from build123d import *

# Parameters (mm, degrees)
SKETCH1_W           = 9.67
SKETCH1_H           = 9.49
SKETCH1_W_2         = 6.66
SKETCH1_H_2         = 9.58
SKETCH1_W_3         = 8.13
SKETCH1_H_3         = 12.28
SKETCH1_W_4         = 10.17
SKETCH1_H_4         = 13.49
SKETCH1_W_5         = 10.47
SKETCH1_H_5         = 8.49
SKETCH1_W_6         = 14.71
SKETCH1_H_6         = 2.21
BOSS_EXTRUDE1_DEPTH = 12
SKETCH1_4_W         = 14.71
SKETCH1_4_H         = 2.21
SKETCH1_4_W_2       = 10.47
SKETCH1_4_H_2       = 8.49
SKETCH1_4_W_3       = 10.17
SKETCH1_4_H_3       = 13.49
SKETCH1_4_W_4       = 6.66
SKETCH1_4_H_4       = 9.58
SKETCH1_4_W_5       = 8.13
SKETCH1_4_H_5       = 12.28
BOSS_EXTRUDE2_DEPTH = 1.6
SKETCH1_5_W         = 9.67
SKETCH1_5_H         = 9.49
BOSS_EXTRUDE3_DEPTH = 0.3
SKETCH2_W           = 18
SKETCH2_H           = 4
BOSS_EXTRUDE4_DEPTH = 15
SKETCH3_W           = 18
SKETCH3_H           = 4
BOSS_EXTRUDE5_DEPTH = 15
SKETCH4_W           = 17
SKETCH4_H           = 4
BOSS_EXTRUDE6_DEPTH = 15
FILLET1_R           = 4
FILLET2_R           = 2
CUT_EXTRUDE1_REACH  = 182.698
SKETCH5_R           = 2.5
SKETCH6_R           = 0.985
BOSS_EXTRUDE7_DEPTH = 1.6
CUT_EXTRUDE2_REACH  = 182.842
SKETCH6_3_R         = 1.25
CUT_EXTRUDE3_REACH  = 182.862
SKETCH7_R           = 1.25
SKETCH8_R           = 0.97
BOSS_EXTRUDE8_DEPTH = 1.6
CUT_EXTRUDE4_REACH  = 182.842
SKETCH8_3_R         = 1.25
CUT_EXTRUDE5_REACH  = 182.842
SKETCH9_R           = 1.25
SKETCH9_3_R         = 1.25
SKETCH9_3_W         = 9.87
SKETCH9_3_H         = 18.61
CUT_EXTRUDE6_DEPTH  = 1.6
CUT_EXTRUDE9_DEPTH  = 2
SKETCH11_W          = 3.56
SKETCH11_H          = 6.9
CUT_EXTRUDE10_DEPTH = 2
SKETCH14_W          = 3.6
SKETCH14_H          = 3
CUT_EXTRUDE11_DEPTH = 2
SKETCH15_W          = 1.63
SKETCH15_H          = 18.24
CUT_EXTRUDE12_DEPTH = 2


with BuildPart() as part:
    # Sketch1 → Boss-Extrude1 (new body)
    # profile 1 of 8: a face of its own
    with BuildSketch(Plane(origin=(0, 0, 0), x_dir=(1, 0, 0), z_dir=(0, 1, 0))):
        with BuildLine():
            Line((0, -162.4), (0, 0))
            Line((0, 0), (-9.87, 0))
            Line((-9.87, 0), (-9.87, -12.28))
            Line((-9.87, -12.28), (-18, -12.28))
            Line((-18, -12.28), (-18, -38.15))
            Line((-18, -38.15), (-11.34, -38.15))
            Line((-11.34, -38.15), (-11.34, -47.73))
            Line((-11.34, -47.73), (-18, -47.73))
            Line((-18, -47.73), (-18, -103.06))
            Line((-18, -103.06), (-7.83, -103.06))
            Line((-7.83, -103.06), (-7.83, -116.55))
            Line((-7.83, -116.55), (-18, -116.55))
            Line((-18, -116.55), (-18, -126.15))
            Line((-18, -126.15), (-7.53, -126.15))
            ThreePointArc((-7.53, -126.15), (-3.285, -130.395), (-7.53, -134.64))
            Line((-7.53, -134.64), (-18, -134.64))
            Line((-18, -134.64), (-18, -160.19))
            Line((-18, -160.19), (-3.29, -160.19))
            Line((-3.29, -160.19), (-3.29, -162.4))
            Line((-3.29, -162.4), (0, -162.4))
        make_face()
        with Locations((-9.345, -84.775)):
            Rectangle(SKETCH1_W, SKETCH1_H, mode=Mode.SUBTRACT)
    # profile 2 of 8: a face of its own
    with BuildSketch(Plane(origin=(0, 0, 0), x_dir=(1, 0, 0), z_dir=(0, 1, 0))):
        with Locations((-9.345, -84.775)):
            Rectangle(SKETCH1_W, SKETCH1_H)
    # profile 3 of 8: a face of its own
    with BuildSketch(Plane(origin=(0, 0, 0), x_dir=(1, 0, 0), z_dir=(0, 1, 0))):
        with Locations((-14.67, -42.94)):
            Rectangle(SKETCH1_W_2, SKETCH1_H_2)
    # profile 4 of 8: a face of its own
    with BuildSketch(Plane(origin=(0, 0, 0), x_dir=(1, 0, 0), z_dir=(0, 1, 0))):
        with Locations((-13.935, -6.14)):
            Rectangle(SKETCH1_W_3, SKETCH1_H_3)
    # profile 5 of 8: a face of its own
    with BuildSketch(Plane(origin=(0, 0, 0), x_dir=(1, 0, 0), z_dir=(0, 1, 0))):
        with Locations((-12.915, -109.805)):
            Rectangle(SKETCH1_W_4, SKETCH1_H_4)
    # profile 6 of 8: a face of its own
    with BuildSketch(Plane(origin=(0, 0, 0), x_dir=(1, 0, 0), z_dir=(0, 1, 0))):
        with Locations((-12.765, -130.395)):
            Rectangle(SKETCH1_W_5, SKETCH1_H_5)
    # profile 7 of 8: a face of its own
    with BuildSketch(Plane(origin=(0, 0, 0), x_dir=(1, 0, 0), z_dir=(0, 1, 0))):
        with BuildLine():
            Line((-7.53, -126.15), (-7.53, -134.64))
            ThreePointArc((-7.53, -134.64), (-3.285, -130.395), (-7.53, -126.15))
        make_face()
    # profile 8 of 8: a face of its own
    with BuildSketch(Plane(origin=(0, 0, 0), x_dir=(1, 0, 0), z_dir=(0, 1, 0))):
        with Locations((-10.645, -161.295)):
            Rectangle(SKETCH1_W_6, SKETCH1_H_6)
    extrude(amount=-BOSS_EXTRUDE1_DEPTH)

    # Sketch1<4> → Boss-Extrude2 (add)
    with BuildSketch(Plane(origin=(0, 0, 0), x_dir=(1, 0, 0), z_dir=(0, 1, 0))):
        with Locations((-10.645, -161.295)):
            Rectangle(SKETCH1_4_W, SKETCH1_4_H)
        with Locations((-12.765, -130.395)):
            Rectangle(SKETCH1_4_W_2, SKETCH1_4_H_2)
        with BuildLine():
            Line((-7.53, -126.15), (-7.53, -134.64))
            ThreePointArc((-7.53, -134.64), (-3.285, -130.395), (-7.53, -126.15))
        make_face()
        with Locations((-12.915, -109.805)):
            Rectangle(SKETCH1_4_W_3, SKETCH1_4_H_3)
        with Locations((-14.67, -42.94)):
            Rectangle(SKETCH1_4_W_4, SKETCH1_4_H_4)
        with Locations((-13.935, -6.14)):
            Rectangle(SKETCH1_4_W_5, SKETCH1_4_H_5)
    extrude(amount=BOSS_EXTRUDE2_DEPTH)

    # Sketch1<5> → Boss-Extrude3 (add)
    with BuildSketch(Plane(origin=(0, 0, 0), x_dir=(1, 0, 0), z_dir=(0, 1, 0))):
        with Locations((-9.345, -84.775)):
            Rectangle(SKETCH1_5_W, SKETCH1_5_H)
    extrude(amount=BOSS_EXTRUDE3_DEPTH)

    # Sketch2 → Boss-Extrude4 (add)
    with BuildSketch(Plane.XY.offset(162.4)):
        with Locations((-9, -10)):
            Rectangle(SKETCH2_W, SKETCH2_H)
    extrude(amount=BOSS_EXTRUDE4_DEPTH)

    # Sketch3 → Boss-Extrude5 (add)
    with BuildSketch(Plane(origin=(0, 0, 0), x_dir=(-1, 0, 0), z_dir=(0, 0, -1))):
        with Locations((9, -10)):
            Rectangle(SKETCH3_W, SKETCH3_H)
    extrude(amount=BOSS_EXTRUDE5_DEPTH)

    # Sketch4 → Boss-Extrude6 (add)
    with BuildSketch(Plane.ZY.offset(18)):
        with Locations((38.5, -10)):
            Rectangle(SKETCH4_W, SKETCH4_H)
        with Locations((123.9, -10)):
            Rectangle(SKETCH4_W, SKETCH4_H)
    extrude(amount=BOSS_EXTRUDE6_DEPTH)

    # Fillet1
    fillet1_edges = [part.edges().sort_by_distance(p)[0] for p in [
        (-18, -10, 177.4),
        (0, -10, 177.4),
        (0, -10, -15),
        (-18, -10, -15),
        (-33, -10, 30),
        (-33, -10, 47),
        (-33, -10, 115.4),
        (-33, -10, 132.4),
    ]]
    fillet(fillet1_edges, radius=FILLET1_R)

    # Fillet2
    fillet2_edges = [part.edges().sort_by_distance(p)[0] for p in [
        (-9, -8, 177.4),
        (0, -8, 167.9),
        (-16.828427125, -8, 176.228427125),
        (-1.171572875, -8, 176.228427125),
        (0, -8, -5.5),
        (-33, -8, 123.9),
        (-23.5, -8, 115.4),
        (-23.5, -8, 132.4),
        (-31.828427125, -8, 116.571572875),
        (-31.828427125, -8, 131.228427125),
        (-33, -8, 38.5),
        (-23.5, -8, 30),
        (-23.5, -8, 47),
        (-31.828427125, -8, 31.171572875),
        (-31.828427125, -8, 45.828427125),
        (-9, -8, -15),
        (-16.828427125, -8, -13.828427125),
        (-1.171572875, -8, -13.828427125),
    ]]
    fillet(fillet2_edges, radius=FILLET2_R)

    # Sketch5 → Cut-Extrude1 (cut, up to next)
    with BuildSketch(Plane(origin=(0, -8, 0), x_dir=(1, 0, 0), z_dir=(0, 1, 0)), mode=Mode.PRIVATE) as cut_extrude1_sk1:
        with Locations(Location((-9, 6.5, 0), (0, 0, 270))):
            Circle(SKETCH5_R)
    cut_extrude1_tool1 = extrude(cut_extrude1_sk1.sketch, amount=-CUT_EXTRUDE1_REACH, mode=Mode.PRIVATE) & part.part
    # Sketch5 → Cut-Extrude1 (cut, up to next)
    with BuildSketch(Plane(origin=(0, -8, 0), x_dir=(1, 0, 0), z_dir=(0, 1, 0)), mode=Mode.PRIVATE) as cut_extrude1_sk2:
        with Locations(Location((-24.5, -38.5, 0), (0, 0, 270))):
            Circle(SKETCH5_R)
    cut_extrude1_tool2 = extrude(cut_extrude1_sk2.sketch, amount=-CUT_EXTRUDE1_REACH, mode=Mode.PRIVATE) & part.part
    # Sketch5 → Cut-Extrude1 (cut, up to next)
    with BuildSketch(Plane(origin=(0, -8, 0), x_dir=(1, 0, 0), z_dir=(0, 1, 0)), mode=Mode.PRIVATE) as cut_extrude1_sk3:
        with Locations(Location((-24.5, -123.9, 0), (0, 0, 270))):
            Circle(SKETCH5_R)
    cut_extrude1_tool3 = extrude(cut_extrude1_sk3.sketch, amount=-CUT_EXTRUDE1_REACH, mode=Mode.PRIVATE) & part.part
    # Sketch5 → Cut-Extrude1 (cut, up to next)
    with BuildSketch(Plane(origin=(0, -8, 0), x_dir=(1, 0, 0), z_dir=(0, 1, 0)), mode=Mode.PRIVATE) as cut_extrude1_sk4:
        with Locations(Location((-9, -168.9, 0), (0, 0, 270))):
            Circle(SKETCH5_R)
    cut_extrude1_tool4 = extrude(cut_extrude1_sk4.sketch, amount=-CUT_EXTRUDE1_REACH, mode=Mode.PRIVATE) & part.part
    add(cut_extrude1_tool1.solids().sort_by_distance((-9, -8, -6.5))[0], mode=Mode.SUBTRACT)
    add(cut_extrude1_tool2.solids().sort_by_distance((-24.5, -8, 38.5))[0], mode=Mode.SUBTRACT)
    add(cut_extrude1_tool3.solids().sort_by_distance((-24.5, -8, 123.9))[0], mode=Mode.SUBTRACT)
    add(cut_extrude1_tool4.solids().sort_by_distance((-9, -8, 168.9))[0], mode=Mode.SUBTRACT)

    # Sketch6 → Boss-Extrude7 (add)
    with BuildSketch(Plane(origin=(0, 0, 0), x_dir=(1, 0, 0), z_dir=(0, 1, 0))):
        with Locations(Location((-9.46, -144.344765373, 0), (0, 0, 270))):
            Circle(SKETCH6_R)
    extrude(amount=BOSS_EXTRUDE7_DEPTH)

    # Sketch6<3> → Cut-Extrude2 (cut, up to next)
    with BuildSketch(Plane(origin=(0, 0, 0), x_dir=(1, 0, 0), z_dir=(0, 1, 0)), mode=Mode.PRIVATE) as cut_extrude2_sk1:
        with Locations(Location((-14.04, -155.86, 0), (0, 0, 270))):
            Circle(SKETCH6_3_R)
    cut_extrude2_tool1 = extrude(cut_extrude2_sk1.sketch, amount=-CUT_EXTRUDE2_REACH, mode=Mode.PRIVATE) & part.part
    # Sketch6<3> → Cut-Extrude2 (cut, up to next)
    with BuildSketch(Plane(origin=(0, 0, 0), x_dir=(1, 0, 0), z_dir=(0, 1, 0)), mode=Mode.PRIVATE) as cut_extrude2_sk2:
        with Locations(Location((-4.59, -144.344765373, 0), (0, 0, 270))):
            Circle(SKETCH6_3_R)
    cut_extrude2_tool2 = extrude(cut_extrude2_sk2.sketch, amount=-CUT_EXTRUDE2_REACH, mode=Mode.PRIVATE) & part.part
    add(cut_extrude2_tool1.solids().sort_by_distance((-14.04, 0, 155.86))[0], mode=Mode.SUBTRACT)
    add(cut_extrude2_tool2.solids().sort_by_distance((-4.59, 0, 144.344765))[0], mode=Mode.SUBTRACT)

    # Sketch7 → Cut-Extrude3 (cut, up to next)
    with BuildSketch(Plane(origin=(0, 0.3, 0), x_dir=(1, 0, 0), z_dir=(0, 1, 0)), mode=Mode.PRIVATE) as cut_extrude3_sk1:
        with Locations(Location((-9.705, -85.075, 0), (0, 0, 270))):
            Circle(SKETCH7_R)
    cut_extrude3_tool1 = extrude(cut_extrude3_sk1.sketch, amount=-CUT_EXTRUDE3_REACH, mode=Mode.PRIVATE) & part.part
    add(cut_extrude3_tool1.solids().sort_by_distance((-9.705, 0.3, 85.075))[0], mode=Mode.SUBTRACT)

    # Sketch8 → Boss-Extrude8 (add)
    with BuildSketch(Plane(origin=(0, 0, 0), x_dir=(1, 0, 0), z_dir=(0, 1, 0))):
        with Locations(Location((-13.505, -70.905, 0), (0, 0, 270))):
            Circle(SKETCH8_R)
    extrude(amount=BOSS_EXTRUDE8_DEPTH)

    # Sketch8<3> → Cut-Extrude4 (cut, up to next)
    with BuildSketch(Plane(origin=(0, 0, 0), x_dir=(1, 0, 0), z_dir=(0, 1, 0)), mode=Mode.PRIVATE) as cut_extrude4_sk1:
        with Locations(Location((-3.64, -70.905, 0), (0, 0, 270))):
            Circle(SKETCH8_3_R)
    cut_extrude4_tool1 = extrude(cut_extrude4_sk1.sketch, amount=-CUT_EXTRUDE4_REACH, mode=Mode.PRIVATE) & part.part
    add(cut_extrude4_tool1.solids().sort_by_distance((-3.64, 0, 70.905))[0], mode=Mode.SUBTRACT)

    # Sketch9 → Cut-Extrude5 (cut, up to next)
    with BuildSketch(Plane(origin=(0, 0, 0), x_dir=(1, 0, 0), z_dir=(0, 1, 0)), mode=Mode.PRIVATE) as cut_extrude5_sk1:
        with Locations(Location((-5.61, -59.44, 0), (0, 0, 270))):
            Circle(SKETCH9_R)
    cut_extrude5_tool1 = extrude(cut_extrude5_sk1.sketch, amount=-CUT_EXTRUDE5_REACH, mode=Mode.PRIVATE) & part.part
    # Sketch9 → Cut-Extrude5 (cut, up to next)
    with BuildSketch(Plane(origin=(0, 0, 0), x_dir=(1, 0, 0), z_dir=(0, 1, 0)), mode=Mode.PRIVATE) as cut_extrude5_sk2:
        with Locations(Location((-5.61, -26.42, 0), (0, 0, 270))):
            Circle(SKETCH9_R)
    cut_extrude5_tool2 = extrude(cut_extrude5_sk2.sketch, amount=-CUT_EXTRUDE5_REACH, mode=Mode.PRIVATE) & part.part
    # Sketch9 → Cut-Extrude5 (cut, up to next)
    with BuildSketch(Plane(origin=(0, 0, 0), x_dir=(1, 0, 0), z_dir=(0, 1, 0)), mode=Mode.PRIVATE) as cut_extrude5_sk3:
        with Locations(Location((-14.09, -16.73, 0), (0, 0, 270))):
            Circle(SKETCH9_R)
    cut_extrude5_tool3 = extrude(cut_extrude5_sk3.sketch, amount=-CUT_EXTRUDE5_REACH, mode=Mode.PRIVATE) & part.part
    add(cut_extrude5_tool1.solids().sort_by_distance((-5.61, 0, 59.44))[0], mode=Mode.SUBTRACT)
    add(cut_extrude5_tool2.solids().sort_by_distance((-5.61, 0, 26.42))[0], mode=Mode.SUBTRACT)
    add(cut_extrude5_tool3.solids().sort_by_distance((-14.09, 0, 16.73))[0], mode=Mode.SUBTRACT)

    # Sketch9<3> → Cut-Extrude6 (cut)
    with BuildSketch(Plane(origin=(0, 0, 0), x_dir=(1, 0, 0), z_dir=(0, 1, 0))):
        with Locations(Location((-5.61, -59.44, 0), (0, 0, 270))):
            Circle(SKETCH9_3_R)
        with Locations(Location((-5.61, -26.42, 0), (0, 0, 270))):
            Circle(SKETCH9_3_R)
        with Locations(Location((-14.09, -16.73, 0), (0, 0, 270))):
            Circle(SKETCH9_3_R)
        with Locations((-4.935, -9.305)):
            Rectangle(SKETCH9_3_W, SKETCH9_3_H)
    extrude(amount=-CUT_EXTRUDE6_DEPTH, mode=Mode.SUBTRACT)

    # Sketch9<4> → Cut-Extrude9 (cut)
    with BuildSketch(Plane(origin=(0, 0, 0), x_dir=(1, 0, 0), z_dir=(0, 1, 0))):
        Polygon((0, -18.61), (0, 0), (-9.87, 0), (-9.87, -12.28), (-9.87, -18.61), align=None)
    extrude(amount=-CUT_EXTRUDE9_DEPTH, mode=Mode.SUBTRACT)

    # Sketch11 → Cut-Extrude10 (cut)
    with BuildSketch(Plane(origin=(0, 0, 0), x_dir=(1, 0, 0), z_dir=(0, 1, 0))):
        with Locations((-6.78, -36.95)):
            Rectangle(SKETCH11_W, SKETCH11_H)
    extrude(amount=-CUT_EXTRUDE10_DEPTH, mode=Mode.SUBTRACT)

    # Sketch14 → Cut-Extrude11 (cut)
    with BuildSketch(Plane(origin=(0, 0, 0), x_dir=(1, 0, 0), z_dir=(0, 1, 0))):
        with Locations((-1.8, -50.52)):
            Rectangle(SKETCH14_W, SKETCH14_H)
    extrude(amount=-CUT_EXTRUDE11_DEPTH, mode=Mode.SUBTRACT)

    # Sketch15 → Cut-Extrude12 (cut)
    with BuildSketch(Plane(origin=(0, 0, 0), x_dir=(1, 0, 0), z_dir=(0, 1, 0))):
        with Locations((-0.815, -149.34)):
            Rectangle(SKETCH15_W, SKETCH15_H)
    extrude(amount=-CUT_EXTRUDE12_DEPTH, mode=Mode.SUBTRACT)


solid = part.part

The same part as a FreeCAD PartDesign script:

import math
import FreeCAD as App
import Part
import Sketcher
from FreeCAD import Vector


def edges_at(feature, points):
    """Names of the edges that pass closest to the given points."""
    edges = feature.Shape.Edges
    near = lambda p: min(range(len(edges)), key=lambda i: edges[i].distToShape(Part.Vertex(*p))[0])
    return sorted({f"Edge{near(p) + 1}" for p in points})

doc = App.newDocument("Part")
body = doc.addObject("PartDesign::Body", "Body")

# Sketch on XZ plane
sketch1 = body.newObject("Sketcher::SketchObject", "Sketch")
sketch1.AttachmentSupport = (doc.getObject("XZ_Plane"), [""])
sketch1.MapMode = "FlatFace"
sketch1.addGeometry([
    Part.LineSegment(Vector(0, 162, 0), Vector(0, 0, 0)),
    Part.LineSegment(Vector(0, 0, 0), Vector(-18, 0, 0)),
    Part.LineSegment(Vector(-18, 0, 0), Vector(-18, 162, 0)),
    Part.LineSegment(Vector(-18, 162, 0), Vector(0, 162, 0)),
], False)
sketch1.addConstraint([
    Sketcher.Constraint("Coincident", 0, 2, 1, 1),
    Sketcher.Constraint("Coincident", 1, 2, 2, 1),
    Sketcher.Constraint("Coincident", 2, 2, 3, 1),
    Sketcher.Constraint("Coincident", 3, 2, 0, 1),
    Sketcher.Constraint("Vertical", 0),
    Sketcher.Constraint("Horizontal", 1),
    Sketcher.Constraint("Vertical", 2),
    Sketcher.Constraint("Horizontal", 3),
    Sketcher.Constraint("Coincident", 0, 2, -1, 1),
    Sketcher.Constraint("DistanceX", 1, 2, 1, 1, 18.0),
    Sketcher.Constraint("DistanceY", 0, 2, 0, 1, 162.4),
])
pad1 = body.newObject("PartDesign::Pad", "Pad")
pad1.Profile = sketch1
pad1.Length = 12

# Sketch on XZ plane
sketch2 = body.newObject("Sketcher::SketchObject", "Sketch001")
sketch2.AttachmentSupport = (doc.getObject("XZ_Plane"), [""])
sketch2.MapMode = "FlatFace"
sketch2.addGeometry([
    Part.LineSegment(Vector(-18, 160.2, 0), Vector(-18, 162.4, 0)),  # 0
    Part.LineSegment(Vector(-18, 162.4, 0), Vector(-3.3, 162.4, 0)),  # 1
    Part.LineSegment(Vector(-3.3, 162.4, 0), Vector(-3.3, 160.2, 0)),  # 2
    Part.LineSegment(Vector(-3.3, 160.2, 0), Vector(-18, 160.2, 0)),  # 3
    Part.LineSegment(Vector(-18, 126.2, 0), Vector(-18, 134.6, 0)),  # 4
    Part.LineSegment(Vector(-18, 134.6, 0), Vector(-7.5, 134.6, 0)),  # 5
    Part.ArcOfCircle(Part.Circle(Vector(-7.5, 130.4, 0), Vector(0, 0, 1), 4.2), math.radians(-90), math.radians(90)),  # 6
    Part.LineSegment(Vector(-7.5, 126.2, 0), Vector(-18, 126.2, 0)),  # 7
    Part.LineSegment(Vector(-18, 103.1, 0), Vector(-18, 116.5, 0)),  # 8
    Part.LineSegment(Vector(-18, 116.5, 0), Vector(-7.8, 116.5, 0)),  # 9
    Part.LineSegment(Vector(-7.8, 116.5, 0), Vector(-7.8, 103.1, 0)),  # 10
    Part.LineSegment(Vector(-7.8, 103.1, 0), Vector(-18, 103.1, 0)),  # 11
    Part.LineSegment(Vector(-18, 38.1, 0), Vector(-18, 47.7, 0)),  # 12
    Part.LineSegment(Vector(-18, 47.7, 0), Vector(-11.3, 47.7, 0)),  # 13
    Part.LineSegment(Vector(-11.3, 47.7, 0), Vector(-11.3, 38.1, 0)),  # 14
    Part.LineSegment(Vector(-11.3, 38.1, 0), Vector(-18, 38.1, 0)),  # 15
    Part.LineSegment(Vector(-18, 0, 0), Vector(-18, 12.3, 0)),  # 16
    Part.LineSegment(Vector(-18, 12.3, 0), Vector(-9.9, 12.3, 0)),  # 17
    Part.LineSegment(Vector(-9.9, 12.3, 0), Vector(-9.9, 0, 0)),  # 18
    Part.LineSegment(Vector(-9.9, 0, 0), Vector(-18, 0, 0)),  # 19
], False)
sketch2.addConstraint([
    Sketcher.Constraint("Coincident", 0, 2, 1, 1),
    Sketcher.Constraint("Coincident", 1, 2, 2, 1),
    Sketcher.Constraint("Coincident", 2, 2, 3, 1),
    Sketcher.Constraint("Coincident", 3, 2, 0, 1),
    Sketcher.Constraint("Coincident", 4, 2, 5, 1),
    Sketcher.Constraint("Tangent", 5, 2, 6, 2),
    Sketcher.Constraint("Tangent", 6, 1, 7, 1),
    Sketcher.Constraint("Coincident", 7, 2, 4, 1),
    Sketcher.Constraint("Coincident", 8, 2, 9, 1),
    Sketcher.Constraint("Coincident", 9, 2, 10, 1),
    Sketcher.Constraint("Coincident", 10, 2, 11, 1),
    Sketcher.Constraint("Coincident", 11, 2, 8, 1),
    Sketcher.Constraint("Coincident", 12, 2, 13, 1),
    Sketcher.Constraint("Coincident", 13, 2, 14, 1),
    Sketcher.Constraint("Coincident", 14, 2, 15, 1),
    Sketcher.Constraint("Coincident", 15, 2, 12, 1),
    Sketcher.Constraint("Coincident", 16, 2, 17, 1),
    Sketcher.Constraint("Coincident", 17, 2, 18, 1),
    Sketcher.Constraint("Coincident", 18, 2, 19, 1),
    Sketcher.Constraint("Coincident", 19, 2, 16, 1),
    Sketcher.Constraint("Vertical", 0),
    Sketcher.Constraint("Horizontal", 1),
    Sketcher.Constraint("Vertical", 2),
    Sketcher.Constraint("Horizontal", 3),
    Sketcher.Constraint("Vertical", 4),
    Sketcher.Constraint("Horizontal", 5),
    Sketcher.Constraint("Horizontal", 7),
    Sketcher.Constraint("Vertical", 8),
    Sketcher.Constraint("Horizontal", 9),
    Sketcher.Constraint("Vertical", 10),
    Sketcher.Constraint("Horizontal", 11),
    Sketcher.Constraint("Vertical", 12),
    Sketcher.Constraint("Horizontal", 13),
    Sketcher.Constraint("Vertical", 14),
    Sketcher.Constraint("Horizontal", 15),
    Sketcher.Constraint("Vertical", 16),
    Sketcher.Constraint("Horizontal", 17),
    Sketcher.Constraint("Vertical", 18),
    Sketcher.Constraint("Horizontal", 19),
    Sketcher.Constraint("PointOnObject", 18, 2, -1),
    Sketcher.Constraint("Vertical", 3, 2, 4, 2),
    Sketcher.Constraint("Vertical", 7, 2, 8, 2),
    Sketcher.Constraint("Vertical", 11, 2, 12, 2),
    Sketcher.Constraint("Vertical", 15, 2, 16, 2),
    Sketcher.Constraint("DistanceX", 0, 2, -1, 1, 18.0),
    Sketcher.Constraint("Radius", 6, 4.245),
    Sketcher.Constraint("DistanceX", 1, 1, 1, 2, 14.71),
    Sketcher.Constraint("DistanceX", 5, 1, 5, 2, 10.47),
    Sketcher.Constraint("DistanceX", 9, 1, 9, 2, 10.17),
    Sketcher.Constraint("DistanceX", 13, 1, 13, 2, 6.66),
    Sketcher.Constraint("DistanceX", 17, 1, 17, 2, 8.13),
    Sketcher.Constraint("DistanceY", 0, 1, 0, 2, 2.21),
    Sketcher.Constraint("DistanceY", 8, 1, 8, 2, 13.49),
    Sketcher.Constraint("DistanceY", 12, 1, 12, 2, 9.58),
    Sketcher.Constraint("DistanceY", 16, 1, 16, 2, 12.28),
    Sketcher.Constraint("DistanceY", -1, 1, 0, 2, 162.4),
    Sketcher.Constraint("DistanceY", 8, 2, 7, 2, 9.6),
    Sketcher.Constraint("DistanceY", 14, 2, 9, 2, 78.4),
    Sketcher.Constraint("DistanceY", -1, 1, 4, 2, 134.64),
])
pad2 = body.newObject("PartDesign::Pad", "Pad001")
pad2.Profile = sketch2
pad2.Length = 1.6
pad2.Reversed = True

# Sketch on XZ plane
sketch3 = body.newObject("Sketcher::SketchObject", "Sketch002")
sketch3.AttachmentSupport = (doc.getObject("XZ_Plane"), [""])
sketch3.MapMode = "FlatFace"
sketch3.addGeometry([
    Part.LineSegment(Vector(-14, 80, 0), Vector(-14, 90, 0)),
    Part.LineSegment(Vector(-14, 90, 0), Vector(-5, 90, 0)),
    Part.LineSegment(Vector(-5, 90, 0), Vector(-5, 80, 0)),
    Part.LineSegment(Vector(-5, 80, 0), Vector(-14, 80, 0)),
], False)
sketch3.addConstraint([
    Sketcher.Constraint("Coincident", 0, 2, 1, 1),
    Sketcher.Constraint("Coincident", 1, 2, 2, 1),
    Sketcher.Constraint("Coincident", 2, 2, 3, 1),
    Sketcher.Constraint("Coincident", 3, 2, 0, 1),
    Sketcher.Constraint("Vertical", 0),
    Sketcher.Constraint("Horizontal", 1),
    Sketcher.Constraint("Vertical", 2),
    Sketcher.Constraint("Horizontal", 3),
    Sketcher.Constraint("DistanceX", 1, 1, 1, 2, 9.67),
    Sketcher.Constraint("DistanceY", 0, 1, 0, 2, 9.49),
    Sketcher.Constraint("DistanceX", 0, 2, -1, 1, 14.18),
    Sketcher.Constraint("DistanceY", -1, 1, 0, 2, 89.52),
])
pad3 = body.newObject("PartDesign::Pad", "Pad002")
pad3.Profile = sketch3
pad3.Length = 0.3
pad3.Reversed = True

# Sketch on XY plane
sketch4 = body.newObject("Sketcher::SketchObject", "Sketch003")
sketch4.AttachmentSupport = (doc.getObject("XY_Plane"), [""])
sketch4.MapMode = "FlatFace"
sketch4.AttachmentOffset = App.Placement(Vector(0, 0, 162.4), App.Rotation())
sketch4.addGeometry([
    Part.LineSegment(Vector(-18, -8, 0), Vector(-18, -12, 0)),
    Part.LineSegment(Vector(-18, -12, 0), Vector(0, -12, 0)),
    Part.LineSegment(Vector(0, -12, 0), Vector(0, -8, 0)),
    Part.LineSegment(Vector(0, -8, 0), Vector(-18, -8, 0)),
], False)
sketch4.addConstraint([
    Sketcher.Constraint("Coincident", 0, 2, 1, 1),
    Sketcher.Constraint("Coincident", 1, 2, 2, 1),
    Sketcher.Constraint("Coincident", 2, 2, 3, 1),
    Sketcher.Constraint("Coincident", 3, 2, 0, 1),
    Sketcher.Constraint("Vertical", 0),
    Sketcher.Constraint("Horizontal", 1),
    Sketcher.Constraint("Vertical", 2),
    Sketcher.Constraint("Horizontal", 3),
    Sketcher.Constraint("PointOnObject", 1, 2, -2),
    Sketcher.Constraint("DistanceX", 1, 1, 1, 2, 18.0),
    Sketcher.Constraint("DistanceY", 0, 2, 0, 1, 4.0),
    Sketcher.Constraint("DistanceY", 0, 2, -1, 1, 12.0),
])
pad4 = body.newObject("PartDesign::Pad", "Pad003")
pad4.Profile = sketch4
pad4.Length = 15

# Sketch on XY plane
sketch5 = body.newObject("Sketcher::SketchObject", "Sketch004")
sketch5.AttachmentSupport = (doc.getObject("XY_Plane"), [""])
sketch5.MapMode = "FlatFace"
sketch5.addGeometry([
    Part.LineSegment(Vector(0, -8, 0), Vector(0, -12, 0)),
    Part.LineSegment(Vector(0, -12, 0), Vector(-18, -12, 0)),
    Part.LineSegment(Vector(-18, -12, 0), Vector(-18, -8, 0)),
    Part.LineSegment(Vector(-18, -8, 0), Vector(0, -8, 0)),
], False)
sketch5.addConstraint([
    Sketcher.Constraint("Coincident", 0, 2, 1, 1),
    Sketcher.Constraint("Coincident", 1, 2, 2, 1),
    Sketcher.Constraint("Coincident", 2, 2, 3, 1),
    Sketcher.Constraint("Coincident", 3, 2, 0, 1),
    Sketcher.Constraint("Vertical", 0),
    Sketcher.Constraint("Horizontal", 1),
    Sketcher.Constraint("Vertical", 2),
    Sketcher.Constraint("Horizontal", 3),
    Sketcher.Constraint("PointOnObject", 0, 2, -2),
    Sketcher.Constraint("DistanceX", 1, 2, 1, 1, 18.0),
    Sketcher.Constraint("DistanceY", 0, 2, 0, 1, 4.0),
    Sketcher.Constraint("DistanceY", 0, 2, -1, 1, 12.0),
])
pad5 = body.newObject("PartDesign::Pad", "Pad004")
pad5.Profile = sketch5
pad5.Length = 15
pad5.Reversed = True

# Sketch on YZ plane
sketch6 = body.newObject("Sketcher::SketchObject", "Sketch005")
sketch6.AttachmentSupport = (doc.getObject("YZ_Plane"), [""])
sketch6.MapMode = "FlatFace"
sketch6.AttachmentOffset = App.Placement(Vector(0, 0, -18), App.Rotation())
sketch6.addGeometry([
    Part.LineSegment(Vector(-8, 30, 0), Vector(-12, 30, 0)),  # 0
    Part.LineSegment(Vector(-12, 30, 0), Vector(-12, 47, 0)),  # 1
    Part.LineSegment(Vector(-12, 47, 0), Vector(-8, 47, 0)),  # 2
    Part.LineSegment(Vector(-8, 47, 0), Vector(-8, 30, 0)),  # 3
    Part.LineSegment(Vector(-8, 115.4, 0), Vector(-12, 115.4, 0)),  # 4
    Part.LineSegment(Vector(-12, 115.4, 0), Vector(-12, 132.4, 0)),  # 5
    Part.LineSegment(Vector(-12, 132.4, 0), Vector(-8, 132.4, 0)),  # 6
    Part.LineSegment(Vector(-8, 132.4, 0), Vector(-8, 115.4, 0)),  # 7
], False)
sketch6.addConstraint([
    Sketcher.Constraint("Coincident", 0, 2, 1, 1),
    Sketcher.Constraint("Coincident", 1, 2, 2, 1),
    Sketcher.Constraint("Coincident", 2, 2, 3, 1),
    Sketcher.Constraint("Coincident", 3, 2, 0, 1),
    Sketcher.Constraint("Coincident", 4, 2, 5, 1),
    Sketcher.Constraint("Coincident", 5, 2, 6, 1),
    Sketcher.Constraint("Coincident", 6, 2, 7, 1),
    Sketcher.Constraint("Coincident", 7, 2, 4, 1),
    Sketcher.Constraint("Horizontal", 0),
    Sketcher.Constraint("Vertical", 1),
    Sketcher.Constraint("Horizontal", 2),
    Sketcher.Constraint("Vertical", 3),
    Sketcher.Constraint("Horizontal", 4),
    Sketcher.Constraint("Vertical", 5),
    Sketcher.Constraint("Horizontal", 6),
    Sketcher.Constraint("Vertical", 7),
    Sketcher.Constraint("Vertical", 1, 2, 4, 2),
    Sketcher.Constraint("Vertical", 3, 2, 6, 2),
    Sketcher.Constraint("Equal", 3, 5),
    Sketcher.Constraint("DistanceX", 0, 2, 0, 1, 4.0),
    Sketcher.Constraint("DistanceY", 1, 1, 1, 2, 17.0),
    Sketcher.Constraint("DistanceX", 0, 2, -1, 1, 12.0),
    Sketcher.Constraint("DistanceY", -1, 1, 0, 2, 30.0),
    Sketcher.Constraint("DistanceY", -1, 1, 4, 2, 115.4),
])
pad6 = body.newObject("PartDesign::Pad", "Pad005")
pad6.Profile = sketch6
pad6.Length = 15
pad6.Reversed = True
doc.recompute()

fillet = body.newObject("PartDesign::Fillet", "Fillet")
fillet.Base = (pad6, edges_at(pad6, [
    (-18, -10, 177.4),
    (0, -10, 177.4),
    (0, -10, -15),
    (-18, -10, -15),
    (-33, -10, 30),
    (-33, -10, 47),
    (-33, -10, 115.4),
    (-33, -10, 132.4),
]))
fillet.Radius = 4
doc.recompute()

fillet2 = body.newObject("PartDesign::Fillet", "Fillet001")
fillet2.Base = (fillet, edges_at(fillet, [
    (-9, -8, 177.4),
    (0, -8, 167.9),
    (-16.828, -8, 176.228),
    (-1.172, -8, 176.228),
    (0, -8, -5.5),
    (-33, -8, 123.9),
    (-23.5, -8, 115.4),
    (-23.5, -8, 132.4),
    (-31.828, -8, 116.572),
    (-31.828, -8, 131.228),
    (-33, -8, 38.5),
    (-23.5, -8, 30),
    (-23.5, -8, 47),
    (-31.828, -8, 31.172),
    (-31.828, -8, 45.828),
    (-9, -8, -15),
    (-16.828, -8, -13.828),
    (-1.172, -8, -13.828),
]))
fillet2.Radius = 2

# Sketch on XZ plane
sketch7 = body.newObject("Sketcher::SketchObject", "Sketch006")
sketch7.AttachmentSupport = (doc.getObject("XZ_Plane"), [""])
sketch7.MapMode = "FlatFace"
sketch7.AttachmentOffset = App.Placement(Vector(0, 0, 8), App.Rotation())
sketch7.addGeometry(Part.Circle(Vector(-9, -6.5, 0), Vector(0, 0, 1), 2.5), False)
sketch7.addConstraint([
    Sketcher.Constraint("Diameter", 0, 5.0),
    Sketcher.Constraint("DistanceX", 0, 3, -1, 1, 9.0),
    Sketcher.Constraint("DistanceY", 0, 3, -1, 1, 6.5),
])
pocket1 = body.newObject("PartDesign::Pocket", "Pocket")
pocket1.Profile = sketch7
pocket1.Type = "UpToFirst"
pocket1.Reversed = True

# Sketch on XZ plane
sketch8 = body.newObject("Sketcher::SketchObject", "Sketch007")
sketch8.AttachmentSupport = (doc.getObject("XZ_Plane"), [""])
sketch8.MapMode = "FlatFace"
sketch8.AttachmentOffset = App.Placement(Vector(0, 0, 8), App.Rotation())
sketch8.addGeometry(Part.Circle(Vector(-24.5, 38.5, 0), Vector(0, 0, 1), 2.5), False)
sketch8.addConstraint([
    Sketcher.Constraint("Diameter", 0, 5.0),
    Sketcher.Constraint("DistanceX", 0, 3, -1, 1, 24.5),
    Sketcher.Constraint("DistanceY", -1, 1, 0, 3, 38.5),
])
pocket2 = body.newObject("PartDesign::Pocket", "Pocket001")
pocket2.Profile = sketch8
pocket2.Type = "UpToFirst"
pocket2.Reversed = True

# Sketch on XZ plane
sketch9 = body.newObject("Sketcher::SketchObject", "Sketch008")
sketch9.AttachmentSupport = (doc.getObject("XZ_Plane"), [""])
sketch9.MapMode = "FlatFace"
sketch9.AttachmentOffset = App.Placement(Vector(0, 0, 8), App.Rotation())
sketch9.addGeometry(Part.Circle(Vector(-24.5, 123.9, 0), Vector(0, 0, 1), 2.5), False)
sketch9.addConstraint([
    Sketcher.Constraint("Diameter", 0, 5.0),
    Sketcher.Constraint("DistanceX", 0, 3, -1, 1, 24.5),
    Sketcher.Constraint("DistanceY", -1, 1, 0, 3, 123.9),
])
pocket3 = body.newObject("PartDesign::Pocket", "Pocket002")
pocket3.Profile = sketch9
pocket3.Type = "UpToFirst"
pocket3.Reversed = True

# Sketch on XZ plane
sketch10 = body.newObject("Sketcher::SketchObject", "Sketch009")
sketch10.AttachmentSupport = (doc.getObject("XZ_Plane"), [""])
sketch10.MapMode = "FlatFace"
sketch10.AttachmentOffset = App.Placement(Vector(0, 0, 8), App.Rotation())
sketch10.addGeometry(Part.Circle(Vector(-9, 168.9, 0), Vector(0, 0, 1), 2.5), False)
sketch10.addConstraint([
    Sketcher.Constraint("Diameter", 0, 5.0),
    Sketcher.Constraint("DistanceX", 0, 3, -1, 1, 9.0),
    Sketcher.Constraint("DistanceY", -1, 1, 0, 3, 168.9),
])
pocket4 = body.newObject("PartDesign::Pocket", "Pocket003")
pocket4.Profile = sketch10
pocket4.Type = "UpToFirst"
pocket4.Reversed = True

# Sketch on XZ plane
sketch11 = body.newObject("Sketcher::SketchObject", "Sketch010")
sketch11.AttachmentSupport = (doc.getObject("XZ_Plane"), [""])
sketch11.MapMode = "FlatFace"
sketch11.addGeometry(Part.Circle(Vector(-9.5, 144.3, 0), Vector(0, 0, 1), 1), False)
sketch11.addConstraint([
    Sketcher.Constraint("Diameter", 0, 1.97),
    Sketcher.Constraint("DistanceX", 0, 3, -1, 1, 9.46),
    Sketcher.Constraint("DistanceY", -1, 1, 0, 3, 144.344765),
])
pad7 = body.newObject("PartDesign::Pad", "Pad006")
pad7.Profile = sketch11
pad7.Length = 1.6
pad7.Reversed = True

# Sketch on XZ plane
sketch12 = body.newObject("Sketcher::SketchObject", "Sketch011")
sketch12.AttachmentSupport = (doc.getObject("XZ_Plane"), [""])
sketch12.MapMode = "FlatFace"
sketch12.addGeometry(Part.Circle(Vector(-14, 155.9, 0), Vector(0, 0, 1), 1.2), False)
sketch12.addConstraint([
    Sketcher.Constraint("Diameter", 0, 2.5),
    Sketcher.Constraint("DistanceX", 0, 3, -1, 1, 14.04),
    Sketcher.Constraint("DistanceY", -1, 1, 0, 3, 155.86),
])
pocket5 = body.newObject("PartDesign::Pocket", "Pocket004")
pocket5.Profile = sketch12
pocket5.Type = "UpToFirst"
pocket5.Reversed = True

# Sketch on XZ plane
sketch13 = body.newObject("Sketcher::SketchObject", "Sketch012")
sketch13.AttachmentSupport = (doc.getObject("XZ_Plane"), [""])
sketch13.MapMode = "FlatFace"
sketch13.addGeometry(Part.Circle(Vector(-4.6, 144.3, 0), Vector(0, 0, 1), 1.2), False)
sketch13.addConstraint([
    Sketcher.Constraint("Diameter", 0, 2.5),
    Sketcher.Constraint("DistanceX", 0, 3, -1, 1, 4.59),
    Sketcher.Constraint("DistanceY", -1, 1, 0, 3, 144.344765),
])
pocket6 = body.newObject("PartDesign::Pocket", "Pocket005")
pocket6.Profile = sketch13
pocket6.Type = "UpToFirst"
pocket6.Reversed = True

# Sketch on XZ plane
sketch14 = body.newObject("Sketcher::SketchObject", "Sketch013")
sketch14.AttachmentSupport = (doc.getObject("XZ_Plane"), [""])
sketch14.MapMode = "FlatFace"
sketch14.AttachmentOffset = App.Placement(Vector(0, 0, -0.3), App.Rotation())
sketch14.addGeometry(Part.Circle(Vector(-9.7, 85.1, 0), Vector(0, 0, 1), 1.2), False)
sketch14.addConstraint([
    Sketcher.Constraint("Diameter", 0, 2.5),
    Sketcher.Constraint("DistanceX", 0, 3, -1, 1, 9.705),
    Sketcher.Constraint("DistanceY", -1, 1, 0, 3, 85.075),
])
pocket7 = body.newObject("PartDesign::Pocket", "Pocket006")
pocket7.Profile = sketch14
pocket7.Type = "UpToFirst"
pocket7.Reversed = True

# Sketch on XZ plane
sketch15 = body.newObject("Sketcher::SketchObject", "Sketch014")
sketch15.AttachmentSupport = (doc.getObject("XZ_Plane"), [""])
sketch15.MapMode = "FlatFace"
sketch15.addGeometry(Part.Circle(Vector(-13.5, 70.9, 0), Vector(0, 0, 1), 1), False)
sketch15.addConstraint([
    Sketcher.Constraint("Diameter", 0, 1.94),
    Sketcher.Constraint("DistanceX", 0, 3, -1, 1, 13.505),
    Sketcher.Constraint("DistanceY", -1, 1, 0, 3, 70.905),
])
pad8 = body.newObject("PartDesign::Pad", "Pad007")
pad8.Profile = sketch15
pad8.Length = 1.6
pad8.Reversed = True

# Sketch on XZ plane
sketch16 = body.newObject("Sketcher::SketchObject", "Sketch015")
sketch16.AttachmentSupport = (doc.getObject("XZ_Plane"), [""])
sketch16.MapMode = "FlatFace"
sketch16.addGeometry(Part.Circle(Vector(-3.6, 70.9, 0), Vector(0, 0, 1), 1.2), False)
sketch16.addConstraint([
    Sketcher.Constraint("Diameter", 0, 2.5),
    Sketcher.Constraint("DistanceX", 0, 3, -1, 1, 3.64),
    Sketcher.Constraint("DistanceY", -1, 1, 0, 3, 70.905),
])
pocket8 = body.newObject("PartDesign::Pocket", "Pocket007")
pocket8.Profile = sketch16
pocket8.Type = "UpToFirst"
pocket8.Reversed = True

# Sketch on XZ plane
sketch17 = body.newObject("Sketcher::SketchObject", "Sketch016")
sketch17.AttachmentSupport = (doc.getObject("XZ_Plane"), [""])
sketch17.MapMode = "FlatFace"
sketch17.addGeometry(Part.Circle(Vector(-5.6, 59.4, 0), Vector(0, 0, 1), 1.2), False)
sketch17.addConstraint([
    Sketcher.Constraint("Diameter", 0, 2.5),
    Sketcher.Constraint("DistanceX", 0, 3, -1, 1, 5.61),
    Sketcher.Constraint("DistanceY", -1, 1, 0, 3, 59.44),
])
pocket9 = body.newObject("PartDesign::Pocket", "Pocket008")
pocket9.Profile = sketch17
pocket9.Type = "UpToFirst"
pocket9.Reversed = True

# Sketch on XZ plane
sketch18 = body.newObject("Sketcher::SketchObject", "Sketch017")
sketch18.AttachmentSupport = (doc.getObject("XZ_Plane"), [""])
sketch18.MapMode = "FlatFace"
sketch18.addGeometry(Part.Circle(Vector(-5.6, 26.4, 0), Vector(0, 0, 1), 1.2), False)
sketch18.addConstraint([
    Sketcher.Constraint("Diameter", 0, 2.5),
    Sketcher.Constraint("DistanceX", 0, 3, -1, 1, 5.61),
    Sketcher.Constraint("DistanceY", -1, 1, 0, 3, 26.42),
])
pocket10 = body.newObject("PartDesign::Pocket", "Pocket009")
pocket10.Profile = sketch18
pocket10.Type = "UpToFirst"
pocket10.Reversed = True

# Sketch on XZ plane
sketch19 = body.newObject("Sketcher::SketchObject", "Sketch018")
sketch19.AttachmentSupport = (doc.getObject("XZ_Plane"), [""])
sketch19.MapMode = "FlatFace"
sketch19.addGeometry(Part.Circle(Vector(-14.1, 16.7, 0), Vector(0, 0, 1), 1.2), False)
sketch19.addConstraint([
    Sketcher.Constraint("Diameter", 0, 2.5),
    Sketcher.Constraint("DistanceX", 0, 3, -1, 1, 14.09),
    Sketcher.Constraint("DistanceY", -1, 1, 0, 3, 16.73),
])
pocket11 = body.newObject("PartDesign::Pocket", "Pocket010")
pocket11.Profile = sketch19
pocket11.Type = "UpToFirst"
pocket11.Reversed = True

# Sketch on XZ plane
sketch20 = body.newObject("Sketcher::SketchObject", "Sketch019")
sketch20.AttachmentSupport = (doc.getObject("XZ_Plane"), [""])
sketch20.MapMode = "FlatFace"
sketch20.addGeometry([
    Part.Circle(Vector(-5.6, 59.4, 0), Vector(0, 0, 1), 1.2),  # 0
    Part.Circle(Vector(-5.6, 26.4, 0), Vector(0, 0, 1), 1.2),  # 1
    Part.Circle(Vector(-14.1, 16.7, 0), Vector(0, 0, 1), 1.2),  # 2
    Part.LineSegment(Vector(-9.9, 0, 0), Vector(-9.9, 18.6, 0)),  # 3
    Part.LineSegment(Vector(-9.9, 18.6, 0), Vector(0, 18.6, 0)),  # 4
    Part.LineSegment(Vector(0, 18.6, 0), Vector(0, 0, 0)),  # 5
    Part.LineSegment(Vector(0, 0, 0), Vector(-9.9, 0, 0)),  # 6
], False)
sketch20.addConstraint([
    Sketcher.Constraint("Coincident", 3, 2, 4, 1),
    Sketcher.Constraint("Coincident", 4, 2, 5, 1),
    Sketcher.Constraint("Coincident", 5, 2, 6, 1),
    Sketcher.Constraint("Coincident", 6, 2, 3, 1),
    Sketcher.Constraint("Vertical", 3),
    Sketcher.Constraint("Horizontal", 4),
    Sketcher.Constraint("Vertical", 5),
    Sketcher.Constraint("Horizontal", 6),
    Sketcher.Constraint("Coincident", 5, 2, -1, 1),
    Sketcher.Constraint("Equal", 0, 1),
    Sketcher.Constraint("Equal", 1, 2),
    Sketcher.Constraint("Vertical", 0, 3, 1, 3),
    Sketcher.Constraint("Diameter", 0, 2.5),
    Sketcher.Constraint("DistanceX", 4, 1, 4, 2, 9.87),
    Sketcher.Constraint("DistanceY", 3, 1, 3, 2, 18.61),
    Sketcher.Constraint("DistanceX", 0, 3, -1, 1, 5.61),
    Sketcher.Constraint("DistanceY", -1, 1, 0, 3, 59.44),
    Sketcher.Constraint("DistanceY", -1, 1, 1, 3, 26.42),
    Sketcher.Constraint("DistanceX", 2, 3, -1, 1, 14.09),
    Sketcher.Constraint("DistanceY", -1, 1, 2, 3, 16.73),
])
pocket12 = body.newObject("PartDesign::Pocket", "Pocket011")
pocket12.Profile = sketch20
pocket12.Length = 1.6
pocket12.Reversed = True

# Sketch on XZ plane
sketch21 = body.newObject("Sketcher::SketchObject", "Sketch020")
sketch21.AttachmentSupport = (doc.getObject("XZ_Plane"), [""])
sketch21.MapMode = "FlatFace"
sketch21.addGeometry([
    Part.LineSegment(Vector(0, 19, 0), Vector(0, 0, 0)),
    Part.LineSegment(Vector(0, 0, 0), Vector(-10, 0, 0)),
    Part.LineSegment(Vector(-10, 0, 0), Vector(-10, 19, 0)),
    Part.LineSegment(Vector(-10, 19, 0), Vector(0, 19, 0)),
], False)
sketch21.addConstraint([
    Sketcher.Constraint("Coincident", 0, 2, 1, 1),
    Sketcher.Constraint("Coincident", 1, 2, 2, 1),
    Sketcher.Constraint("Coincident", 2, 2, 3, 1),
    Sketcher.Constraint("Coincident", 3, 2, 0, 1),
    Sketcher.Constraint("Vertical", 0),
    Sketcher.Constraint("Horizontal", 1),
    Sketcher.Constraint("Vertical", 2),
    Sketcher.Constraint("Horizontal", 3),
    Sketcher.Constraint("Coincident", 0, 2, -1, 1),
    Sketcher.Constraint("DistanceX", 1, 2, 1, 1, 9.87),
    Sketcher.Constraint("DistanceY", 0, 2, 0, 1, 18.61),
])
pocket13 = body.newObject("PartDesign::Pocket", "Pocket012")
pocket13.Profile = sketch21
pocket13.Length = 2
pocket13.Reversed = True

# Sketch on XZ plane
sketch22 = body.newObject("Sketcher::SketchObject", "Sketch021")
sketch22.AttachmentSupport = (doc.getObject("XZ_Plane"), [""])
sketch22.MapMode = "FlatFace"
sketch22.addGeometry([
    Part.LineSegment(Vector(-8.6, 33.5, 0), Vector(-8.6, 40.4, 0)),
    Part.LineSegment(Vector(-8.6, 40.4, 0), Vector(-5, 40.4, 0)),
    Part.LineSegment(Vector(-5, 40.4, 0), Vector(-5, 33.5, 0)),
    Part.LineSegment(Vector(-5, 33.5, 0), Vector(-8.6, 33.5, 0)),
], False)
sketch22.addConstraint([
    Sketcher.Constraint("Coincident", 0, 2, 1, 1),
    Sketcher.Constraint("Coincident", 1, 2, 2, 1),
    Sketcher.Constraint("Coincident", 2, 2, 3, 1),
    Sketcher.Constraint("Coincident", 3, 2, 0, 1),
    Sketcher.Constraint("Vertical", 0),
    Sketcher.Constraint("Horizontal", 1),
    Sketcher.Constraint("Vertical", 2),
    Sketcher.Constraint("Horizontal", 3),
    Sketcher.Constraint("DistanceY", 0, 1, 0, 2, 6.9),
    Sketcher.Constraint("DistanceX", 1, 2, -1, 1, 5.0),
    Sketcher.Constraint("DistanceX", 1, 1, 1, 2, 3.56),
    Sketcher.Constraint("DistanceY", -1, 1, 0, 2, 40.4),
])
pocket14 = body.newObject("PartDesign::Pocket", "Pocket013")
pocket14.Profile = sketch22
pocket14.Length = 2
pocket14.Reversed = True

# Sketch on XZ plane
sketch23 = body.newObject("Sketcher::SketchObject", "Sketch022")
sketch23.AttachmentSupport = (doc.getObject("XZ_Plane"), [""])
sketch23.MapMode = "FlatFace"
sketch23.addGeometry([
    Part.LineSegment(Vector(-3.6, 49, 0), Vector(-3.6, 52, 0)),
    Part.LineSegment(Vector(-3.6, 52, 0), Vector(0, 52, 0)),
    Part.LineSegment(Vector(0, 52, 0), Vector(0, 49, 0)),
    Part.LineSegment(Vector(0, 49, 0), Vector(-3.6, 49, 0)),
], False)
sketch23.addConstraint([
    Sketcher.Constraint("Coincident", 0, 2, 1, 1),
    Sketcher.Constraint("Coincident", 1, 2, 2, 1),
    Sketcher.Constraint("Coincident", 2, 2, 3, 1),
    Sketcher.Constraint("Coincident", 3, 2, 0, 1),
    Sketcher.Constraint("Vertical", 0),
    Sketcher.Constraint("Horizontal", 1),
    Sketcher.Constraint("Vertical", 2),
    Sketcher.Constraint("Horizontal", 3),
    Sketcher.Constraint("PointOnObject", 1, 2, -2),
    Sketcher.Constraint("DistanceY", 0, 1, 0, 2, 3.0),
    Sketcher.Constraint("DistanceX", 1, 1, 1, 2, 3.6),
    Sketcher.Constraint("DistanceY", -1, 1, 0, 2, 52.02),
])
pocket15 = body.newObject("PartDesign::Pocket", "Pocket014")
pocket15.Profile = sketch23
pocket15.Length = 2
pocket15.Reversed = True

# Sketch on XZ plane
sketch24 = body.newObject("Sketcher::SketchObject", "Sketch023")
sketch24.AttachmentSupport = (doc.getObject("XZ_Plane"), [""])
sketch24.MapMode = "FlatFace"
sketch24.addGeometry([
    Part.LineSegment(Vector(-1.6, 140.2, 0), Vector(-1.6, 158.5, 0)),
    Part.LineSegment(Vector(-1.6, 158.5, 0), Vector(0, 158.5, 0)),
    Part.LineSegment(Vector(0, 158.5, 0), Vector(0, 140.2, 0)),
    Part.LineSegment(Vector(0, 140.2, 0), Vector(-1.6, 140.2, 0)),
], False)
sketch24.addConstraint([
    Sketcher.Constraint("Coincident", 0, 2, 1, 1),
    Sketcher.Constraint("Coincident", 1, 2, 2, 1),
    Sketcher.Constraint("Coincident", 2, 2, 3, 1),
    Sketcher.Constraint("Coincident", 3, 2, 0, 1),
    Sketcher.Constraint("Vertical", 0),
    Sketcher.Constraint("Horizontal", 1),
    Sketcher.Constraint("Vertical", 2),
    Sketcher.Constraint("Horizontal", 3),
    Sketcher.Constraint("PointOnObject", 1, 2, -2),
    Sketcher.Constraint("DistanceX", 1, 1, 1, 2, 1.63),
    Sketcher.Constraint("DistanceY", 0, 1, 0, 2, 18.24),
    Sketcher.Constraint("DistanceY", -1, 1, 0, 2, 158.46),
])
pocket16 = body.newObject("PartDesign::Pocket", "Pocket015")
pocket16.Profile = sketch24
pocket16.Length = 2
pocket16.Reversed = True

doc.recompute()
